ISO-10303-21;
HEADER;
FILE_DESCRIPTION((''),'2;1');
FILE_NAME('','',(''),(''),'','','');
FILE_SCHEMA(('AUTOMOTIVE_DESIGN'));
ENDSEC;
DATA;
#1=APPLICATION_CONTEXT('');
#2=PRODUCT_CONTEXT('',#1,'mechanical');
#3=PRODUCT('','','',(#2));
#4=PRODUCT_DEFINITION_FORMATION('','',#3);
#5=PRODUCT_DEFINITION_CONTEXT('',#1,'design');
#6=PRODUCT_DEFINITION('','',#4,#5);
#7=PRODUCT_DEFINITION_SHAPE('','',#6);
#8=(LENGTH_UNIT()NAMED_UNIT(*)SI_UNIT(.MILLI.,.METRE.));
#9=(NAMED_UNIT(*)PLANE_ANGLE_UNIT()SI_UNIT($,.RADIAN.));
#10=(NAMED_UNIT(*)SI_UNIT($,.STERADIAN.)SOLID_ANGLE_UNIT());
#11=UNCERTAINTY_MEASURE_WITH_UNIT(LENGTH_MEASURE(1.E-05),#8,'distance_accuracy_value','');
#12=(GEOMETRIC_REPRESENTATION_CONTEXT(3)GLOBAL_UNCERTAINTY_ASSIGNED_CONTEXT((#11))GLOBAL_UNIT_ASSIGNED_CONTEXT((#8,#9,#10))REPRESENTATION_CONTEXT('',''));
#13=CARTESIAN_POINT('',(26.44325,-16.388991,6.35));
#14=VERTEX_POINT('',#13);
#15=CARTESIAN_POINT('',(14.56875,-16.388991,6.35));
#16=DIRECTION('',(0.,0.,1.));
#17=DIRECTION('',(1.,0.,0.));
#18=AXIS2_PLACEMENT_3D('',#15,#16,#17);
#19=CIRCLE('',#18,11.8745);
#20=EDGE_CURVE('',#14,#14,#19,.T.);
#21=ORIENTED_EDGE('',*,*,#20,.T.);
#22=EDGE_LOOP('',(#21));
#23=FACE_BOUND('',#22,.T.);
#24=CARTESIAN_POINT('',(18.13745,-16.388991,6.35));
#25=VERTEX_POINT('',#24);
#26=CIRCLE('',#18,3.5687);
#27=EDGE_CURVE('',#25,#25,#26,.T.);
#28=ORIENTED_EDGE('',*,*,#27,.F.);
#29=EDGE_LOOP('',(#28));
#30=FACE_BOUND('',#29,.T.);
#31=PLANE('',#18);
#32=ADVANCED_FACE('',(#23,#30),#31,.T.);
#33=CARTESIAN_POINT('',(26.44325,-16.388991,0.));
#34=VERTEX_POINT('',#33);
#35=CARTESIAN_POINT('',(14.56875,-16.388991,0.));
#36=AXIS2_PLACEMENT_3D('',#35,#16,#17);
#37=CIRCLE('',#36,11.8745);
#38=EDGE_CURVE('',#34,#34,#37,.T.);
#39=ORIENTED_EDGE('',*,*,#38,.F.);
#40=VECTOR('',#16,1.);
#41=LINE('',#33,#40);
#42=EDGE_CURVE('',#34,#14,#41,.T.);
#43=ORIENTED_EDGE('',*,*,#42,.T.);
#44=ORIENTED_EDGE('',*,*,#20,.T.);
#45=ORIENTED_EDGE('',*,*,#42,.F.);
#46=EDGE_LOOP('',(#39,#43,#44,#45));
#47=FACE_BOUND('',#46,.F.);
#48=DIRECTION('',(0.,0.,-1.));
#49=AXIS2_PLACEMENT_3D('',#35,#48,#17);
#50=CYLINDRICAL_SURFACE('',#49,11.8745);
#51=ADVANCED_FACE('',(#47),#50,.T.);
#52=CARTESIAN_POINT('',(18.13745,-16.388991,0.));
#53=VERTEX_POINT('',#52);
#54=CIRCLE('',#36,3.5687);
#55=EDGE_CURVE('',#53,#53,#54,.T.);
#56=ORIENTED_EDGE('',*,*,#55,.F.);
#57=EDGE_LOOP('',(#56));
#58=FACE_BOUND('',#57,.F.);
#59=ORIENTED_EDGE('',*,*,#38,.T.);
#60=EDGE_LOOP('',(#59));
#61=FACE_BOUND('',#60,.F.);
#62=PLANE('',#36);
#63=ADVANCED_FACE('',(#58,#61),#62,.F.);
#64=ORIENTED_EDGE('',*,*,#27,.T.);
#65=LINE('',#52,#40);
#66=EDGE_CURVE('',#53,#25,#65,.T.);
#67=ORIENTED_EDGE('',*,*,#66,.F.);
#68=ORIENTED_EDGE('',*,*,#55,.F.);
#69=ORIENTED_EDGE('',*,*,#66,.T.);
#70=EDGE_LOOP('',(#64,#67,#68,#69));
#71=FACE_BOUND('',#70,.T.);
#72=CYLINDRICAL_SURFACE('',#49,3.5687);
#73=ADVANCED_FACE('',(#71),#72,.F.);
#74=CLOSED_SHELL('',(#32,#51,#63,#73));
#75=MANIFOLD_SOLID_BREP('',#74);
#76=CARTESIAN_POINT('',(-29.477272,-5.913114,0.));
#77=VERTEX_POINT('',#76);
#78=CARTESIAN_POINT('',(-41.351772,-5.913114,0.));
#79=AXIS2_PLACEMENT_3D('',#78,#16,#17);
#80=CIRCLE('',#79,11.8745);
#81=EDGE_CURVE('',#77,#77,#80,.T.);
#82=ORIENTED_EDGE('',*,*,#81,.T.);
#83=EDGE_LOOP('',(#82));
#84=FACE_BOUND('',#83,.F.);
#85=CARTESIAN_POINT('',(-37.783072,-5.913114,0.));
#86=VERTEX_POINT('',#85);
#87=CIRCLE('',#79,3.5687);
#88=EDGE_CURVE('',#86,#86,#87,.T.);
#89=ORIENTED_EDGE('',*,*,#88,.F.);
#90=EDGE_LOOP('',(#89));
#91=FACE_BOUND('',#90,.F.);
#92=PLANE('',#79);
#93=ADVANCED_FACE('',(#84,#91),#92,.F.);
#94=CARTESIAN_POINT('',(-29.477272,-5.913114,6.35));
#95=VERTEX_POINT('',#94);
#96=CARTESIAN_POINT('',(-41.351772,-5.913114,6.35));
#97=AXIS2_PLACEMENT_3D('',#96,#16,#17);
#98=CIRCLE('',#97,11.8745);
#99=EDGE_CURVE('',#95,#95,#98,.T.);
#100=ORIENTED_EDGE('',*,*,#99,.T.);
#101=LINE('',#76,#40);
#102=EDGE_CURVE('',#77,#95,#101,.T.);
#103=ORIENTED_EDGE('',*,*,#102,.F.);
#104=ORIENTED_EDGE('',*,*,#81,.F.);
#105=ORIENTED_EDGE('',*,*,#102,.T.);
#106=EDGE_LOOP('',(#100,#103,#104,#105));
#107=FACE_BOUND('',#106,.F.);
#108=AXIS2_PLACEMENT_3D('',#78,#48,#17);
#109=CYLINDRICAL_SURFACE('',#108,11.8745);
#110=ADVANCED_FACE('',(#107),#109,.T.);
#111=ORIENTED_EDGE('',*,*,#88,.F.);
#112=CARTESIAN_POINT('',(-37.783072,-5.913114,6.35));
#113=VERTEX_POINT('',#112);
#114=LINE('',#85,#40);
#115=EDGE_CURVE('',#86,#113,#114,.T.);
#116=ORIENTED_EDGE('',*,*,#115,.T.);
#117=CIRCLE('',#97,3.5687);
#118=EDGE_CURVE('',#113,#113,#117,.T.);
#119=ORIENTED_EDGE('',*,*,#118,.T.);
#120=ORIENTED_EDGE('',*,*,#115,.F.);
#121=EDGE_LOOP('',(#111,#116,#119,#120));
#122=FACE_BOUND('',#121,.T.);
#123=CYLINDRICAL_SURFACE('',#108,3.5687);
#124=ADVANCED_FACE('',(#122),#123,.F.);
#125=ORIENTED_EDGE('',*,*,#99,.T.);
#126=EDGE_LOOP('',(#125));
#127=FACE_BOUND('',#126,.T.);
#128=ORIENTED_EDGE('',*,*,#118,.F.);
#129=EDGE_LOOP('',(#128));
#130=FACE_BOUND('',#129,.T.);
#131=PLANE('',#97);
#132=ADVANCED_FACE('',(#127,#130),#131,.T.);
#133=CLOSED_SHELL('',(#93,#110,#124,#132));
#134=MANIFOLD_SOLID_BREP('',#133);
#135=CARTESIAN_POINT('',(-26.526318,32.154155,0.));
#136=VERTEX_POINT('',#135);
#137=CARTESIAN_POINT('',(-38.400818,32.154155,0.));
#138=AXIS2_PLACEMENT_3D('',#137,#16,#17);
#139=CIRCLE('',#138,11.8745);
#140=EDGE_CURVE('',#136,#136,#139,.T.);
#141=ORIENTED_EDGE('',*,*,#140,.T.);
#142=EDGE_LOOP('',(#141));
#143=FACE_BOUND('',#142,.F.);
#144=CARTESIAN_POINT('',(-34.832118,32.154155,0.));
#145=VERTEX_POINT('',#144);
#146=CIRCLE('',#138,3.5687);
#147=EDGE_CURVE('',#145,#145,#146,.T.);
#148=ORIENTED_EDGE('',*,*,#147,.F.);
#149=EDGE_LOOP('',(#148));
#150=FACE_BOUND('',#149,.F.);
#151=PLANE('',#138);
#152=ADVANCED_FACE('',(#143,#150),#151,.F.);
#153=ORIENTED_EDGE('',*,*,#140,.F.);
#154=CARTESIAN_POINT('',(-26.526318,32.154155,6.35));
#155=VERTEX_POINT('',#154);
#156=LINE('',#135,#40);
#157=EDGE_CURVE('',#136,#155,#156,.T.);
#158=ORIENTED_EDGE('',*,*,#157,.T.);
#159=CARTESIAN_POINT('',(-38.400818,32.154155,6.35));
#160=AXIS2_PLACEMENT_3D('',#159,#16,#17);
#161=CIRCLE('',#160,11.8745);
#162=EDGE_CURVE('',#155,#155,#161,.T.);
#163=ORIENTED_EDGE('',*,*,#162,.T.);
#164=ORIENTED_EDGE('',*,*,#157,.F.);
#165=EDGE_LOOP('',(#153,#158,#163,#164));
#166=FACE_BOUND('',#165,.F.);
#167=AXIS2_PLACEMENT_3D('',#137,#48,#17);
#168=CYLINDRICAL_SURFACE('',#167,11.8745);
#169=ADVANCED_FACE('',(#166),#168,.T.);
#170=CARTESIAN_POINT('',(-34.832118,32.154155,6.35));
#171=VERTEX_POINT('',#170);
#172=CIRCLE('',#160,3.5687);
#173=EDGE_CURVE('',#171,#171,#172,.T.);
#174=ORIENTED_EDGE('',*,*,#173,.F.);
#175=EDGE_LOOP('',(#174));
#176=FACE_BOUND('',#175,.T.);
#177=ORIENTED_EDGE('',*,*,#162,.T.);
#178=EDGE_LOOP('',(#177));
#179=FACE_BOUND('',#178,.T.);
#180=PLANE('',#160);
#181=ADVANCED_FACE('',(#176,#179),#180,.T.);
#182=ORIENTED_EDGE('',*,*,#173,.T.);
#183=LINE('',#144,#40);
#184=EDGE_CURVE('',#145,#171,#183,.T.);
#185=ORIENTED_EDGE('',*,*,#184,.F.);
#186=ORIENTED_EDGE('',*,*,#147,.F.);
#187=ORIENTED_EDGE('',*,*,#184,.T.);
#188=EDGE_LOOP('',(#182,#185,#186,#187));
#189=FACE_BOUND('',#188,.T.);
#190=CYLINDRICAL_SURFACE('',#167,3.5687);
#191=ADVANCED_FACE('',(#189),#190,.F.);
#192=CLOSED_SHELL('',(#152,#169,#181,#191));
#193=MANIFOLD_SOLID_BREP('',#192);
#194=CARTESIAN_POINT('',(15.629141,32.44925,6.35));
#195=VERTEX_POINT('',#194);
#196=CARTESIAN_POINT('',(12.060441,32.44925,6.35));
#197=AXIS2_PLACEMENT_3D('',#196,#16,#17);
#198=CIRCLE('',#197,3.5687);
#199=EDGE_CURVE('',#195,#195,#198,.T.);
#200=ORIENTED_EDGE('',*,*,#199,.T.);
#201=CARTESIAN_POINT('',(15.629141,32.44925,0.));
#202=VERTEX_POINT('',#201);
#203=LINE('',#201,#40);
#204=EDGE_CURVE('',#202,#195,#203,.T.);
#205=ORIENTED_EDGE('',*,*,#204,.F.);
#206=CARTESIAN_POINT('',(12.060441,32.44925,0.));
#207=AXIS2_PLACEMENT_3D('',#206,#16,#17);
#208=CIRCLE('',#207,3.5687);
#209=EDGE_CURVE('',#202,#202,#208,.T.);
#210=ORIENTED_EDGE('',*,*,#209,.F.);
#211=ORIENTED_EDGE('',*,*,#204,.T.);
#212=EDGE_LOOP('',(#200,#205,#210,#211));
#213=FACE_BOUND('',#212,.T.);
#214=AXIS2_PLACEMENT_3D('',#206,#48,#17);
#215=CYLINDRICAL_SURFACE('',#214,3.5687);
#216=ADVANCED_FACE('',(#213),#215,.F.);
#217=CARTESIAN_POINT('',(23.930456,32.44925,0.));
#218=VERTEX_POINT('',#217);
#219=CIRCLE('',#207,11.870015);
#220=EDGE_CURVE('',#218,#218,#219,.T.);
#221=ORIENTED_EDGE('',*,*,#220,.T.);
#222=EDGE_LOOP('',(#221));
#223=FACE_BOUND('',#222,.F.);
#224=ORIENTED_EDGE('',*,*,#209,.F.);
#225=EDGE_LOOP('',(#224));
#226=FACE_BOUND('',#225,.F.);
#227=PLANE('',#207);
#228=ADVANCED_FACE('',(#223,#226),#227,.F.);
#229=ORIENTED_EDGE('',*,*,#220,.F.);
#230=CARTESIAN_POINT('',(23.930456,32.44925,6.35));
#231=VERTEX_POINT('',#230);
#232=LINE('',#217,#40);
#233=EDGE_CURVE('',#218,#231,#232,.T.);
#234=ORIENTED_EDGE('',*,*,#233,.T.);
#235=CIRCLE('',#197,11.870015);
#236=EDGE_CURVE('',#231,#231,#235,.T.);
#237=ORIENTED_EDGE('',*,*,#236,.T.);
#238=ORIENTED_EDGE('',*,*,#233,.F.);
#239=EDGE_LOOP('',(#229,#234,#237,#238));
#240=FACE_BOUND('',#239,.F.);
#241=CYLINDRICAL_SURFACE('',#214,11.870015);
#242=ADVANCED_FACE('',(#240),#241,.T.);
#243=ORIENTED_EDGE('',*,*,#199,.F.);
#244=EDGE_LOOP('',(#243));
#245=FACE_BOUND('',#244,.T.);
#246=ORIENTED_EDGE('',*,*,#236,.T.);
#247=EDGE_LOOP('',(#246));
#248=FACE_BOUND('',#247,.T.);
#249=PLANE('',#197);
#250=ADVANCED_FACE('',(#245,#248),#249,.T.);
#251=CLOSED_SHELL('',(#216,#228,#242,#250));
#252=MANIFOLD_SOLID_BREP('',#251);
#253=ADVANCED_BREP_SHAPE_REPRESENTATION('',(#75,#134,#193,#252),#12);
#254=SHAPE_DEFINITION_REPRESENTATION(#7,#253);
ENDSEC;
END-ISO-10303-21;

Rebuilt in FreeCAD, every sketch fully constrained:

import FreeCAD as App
import Part
import Sketcher

V = App.Vector
Q = App.Units.Quantity

doc = App.newDocument("Part")
body = doc.addObject("PartDesign::Body", "Body")
body.AllowCompound = True

# Sketch on XY plane
sketch1 = body.newObject("Sketcher::SketchObject", "Sketch")
sketch1.AttachmentSupport = (doc.getObject("XY_Plane"), [""])
sketch1.MapMode = "FlatFace"
sketch1.addGeometry([
    Part.Circle(V(-38.4, 32.2, 0), V(0, 0, 1), 11.9),  # 0
    Part.Circle(V(-38.4, 32.2, 0), V(0, 0, 1), 3.6),  # 1
    Part.Circle(V(12.1, 32.4, 0), V(0, 0, 1), 11.9),  # 2
    Part.Circle(V(12.1, 32.4, 0), V(0, 0, 1), 3.6),  # 3
    Part.Circle(V(14.6, -16.4, 0), V(0, 0, 1), 11.9),  # 4
    Part.Circle(V(14.6, -16.4, 0), V(0, 0, 1), 3.6),  # 5
    Part.Circle(V(-41.4, -5.9, 0), V(0, 0, 1), 11.9),  # 6
    Part.Circle(V(-41.4, -5.9, 0), V(0, 0, 1), 3.6),  # 7
], False)
sketch1.addConstraint([
    Sketcher.Constraint("Coincident", 1, 3, 0, 3),
    Sketcher.Constraint("Coincident", 3, 3, 2, 3),
    Sketcher.Constraint("Coincident", 5, 3, 4, 3),
    Sketcher.Constraint("Coincident", 7, 3, 6, 3),
    Sketcher.Constraint("Equal", 1, 3),
    Sketcher.Constraint("Equal", 0, 4),
    Sketcher.Constraint("Equal", 3, 5),
    Sketcher.Constraint("Equal", 4, 6),
    Sketcher.Constraint("Equal", 5, 7),
    Sketcher.Constraint("Diameter", 0, Q("0.935 in")),
    Sketcher.Constraint("Diameter", 1, Q("0.281 in")),
    Sketcher.Constraint("Diameter", 2, 23.74003),
    Sketcher.Constraint("DistanceX", -1, 1, 2, 3, 12.060441),
    Sketcher.Constraint("DistanceY", -1, 1, 2, 3, 32.44925),
    Sketcher.Constraint("DistanceX", -1, 1, 4, 3, 14.56875),
    Sketcher.Constraint("DistanceY", 4, 3, -1, 1, 16.388991),
    Sketcher.Constraint("DistanceX", 6, 3, -1, 1, 41.351772),
    Sketcher.Constraint("DistanceX", 0, 3, 2, 3, 50.461259),
    Sketcher.Constraint("DistanceY", 6, 3, 0, 3, 38.067269),
    Sketcher.Constraint("DistanceY", -1, 1, 0, 3, 32.154155),
])
pad1 = body.newObject("PartDesign::Pad", "Pad")
pad1.Profile = sketch1
pad1.Length = Q("0.25 in")

doc.recompute()
